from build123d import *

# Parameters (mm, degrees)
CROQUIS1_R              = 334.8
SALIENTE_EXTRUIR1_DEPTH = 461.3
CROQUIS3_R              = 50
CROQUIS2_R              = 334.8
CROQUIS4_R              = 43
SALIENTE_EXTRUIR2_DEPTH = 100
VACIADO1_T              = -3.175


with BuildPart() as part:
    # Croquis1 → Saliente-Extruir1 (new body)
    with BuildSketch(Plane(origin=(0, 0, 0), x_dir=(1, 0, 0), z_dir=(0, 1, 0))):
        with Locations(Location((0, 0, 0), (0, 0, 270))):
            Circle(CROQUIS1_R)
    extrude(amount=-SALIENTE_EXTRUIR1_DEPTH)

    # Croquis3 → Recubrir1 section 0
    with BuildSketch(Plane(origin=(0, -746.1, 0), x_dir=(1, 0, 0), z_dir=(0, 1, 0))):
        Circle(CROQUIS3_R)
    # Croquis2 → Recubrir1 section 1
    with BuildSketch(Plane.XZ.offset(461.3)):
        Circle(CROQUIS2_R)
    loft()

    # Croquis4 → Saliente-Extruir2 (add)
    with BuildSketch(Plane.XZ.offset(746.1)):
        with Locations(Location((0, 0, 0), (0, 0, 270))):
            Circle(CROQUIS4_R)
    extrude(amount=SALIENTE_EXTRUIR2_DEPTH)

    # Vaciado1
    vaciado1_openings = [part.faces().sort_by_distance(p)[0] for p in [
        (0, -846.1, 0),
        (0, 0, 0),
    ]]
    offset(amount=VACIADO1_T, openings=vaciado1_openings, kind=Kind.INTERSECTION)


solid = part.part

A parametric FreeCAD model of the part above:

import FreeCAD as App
import Part
import Sketcher
from FreeCAD import Vector


def faces_at(feature, points):
    """Names of the faces that lie closest to the given points."""
    faces = feature.Shape.Faces
    near = lambda p: min(range(len(faces)), key=lambda i: faces[i].distToShape(Part.Vertex(*p))[0])
    return sorted({f"Face{near(p) + 1}" for p in points})

doc = App.newDocument("Part")
params = doc.addObject("Spreadsheet::Sheet", "Params")
for row, (alias, value) in enumerate([
    ("sketch1_diameter", "669.6 mm"),
    ("pad1_length", "461.3 mm"),
    ("sketch2_diameter", "100 mm"),
    ("sketch3_diameter", "669.6 mm"),
    ("sketch4_diameter", "86 mm"),
    ("pad2_length", "100 mm"),
    ("thickness_wall", "3.175 mm"),
], start=1):
    params.set(f"A{row}", alias)
    params.set(f"B{row}", "=" + value)
    params.setAlias(f"B{row}", alias)

body = doc.addObject("PartDesign::Body", "Body")

sketch1 = doc.addObject("Sketcher::SketchObject", "Sketch")
body.addObject(sketch1)
sketch1.AttachmentSupport = (doc.XZ_Plane, [""])
sketch1.MapMode = "FlatFace"
sketch1.addGeometry(Part.Circle(Vector(0, 0, 0), Vector(0, 0, 1), 334.8), False)
sketch1.addConstraint([
    Sketcher.Constraint("Coincident", 0, 3, -1, 1),
    Sketcher.Constraint("Diameter", 0, 669.6),
])
sketch1.setExpression("Constraints[1]", "Params.sketch1_diameter")
pad1 = doc.addObject("PartDesign::Pad", "Pad")
body.addObject(pad1)
pad1.Profile = sketch1
pad1.setExpression("Length", "Params.pad1_length")

sketch2 = doc.addObject("Sketcher::SketchObject", "Sketch001")
body.addObject(sketch2)
sketch2.AttachmentSupport = (doc.XZ_Plane, [""])
sketch2.MapMode = "FlatFace"
sketch2.AttachmentOffset = App.Placement(Vector(0, 0, 746.1), App.Rotation())
sketch2.addGeometry(Part.Circle(Vector(0, 0, 0), Vector(0, 0, 1), 50), False)
sketch2.addConstraint([
    Sketcher.Constraint("Coincident", 0, 3, -1, 1),
    Sketcher.Constraint("Diameter", 0, 100.0),
])
sketch2.setExpression("Constraints[1]", "Params.sketch2_diameter")

sketch3 = doc.addObject("Sketcher::SketchObject", "Sketch002")
body.addObject(sketch3)
sketch3.AttachmentSupport = (doc.XZ_Plane, [""])
sketch3.MapMode = "FlatFace"
sketch3.AttachmentOffset = App.Placement(Vector(0, 0, 461.3), App.Rotation())
sketch3.addGeometry(Part.Circle(Vector(0, 0, 0), Vector(0, 0, 1), 334.8), False)
sketch3.addConstraint([
    Sketcher.Constraint("Coincident", 0, 3, -1, 1),
    Sketcher.Constraint("Diameter", 0, 669.6),
])
sketch3.setExpression("Constraints[1]", "Params.sketch3_diameter")

additiveloft = doc.addObject("PartDesign::AdditiveLoft", "AdditiveLoft")
body.addObject(additiveloft)
additiveloft.Profile = sketch2
additiveloft.Sections = [sketch3]

sketch4 = doc.addObject("Sketcher::SketchObject", "Sketch003")
body.addObject(sketch4)
sketch4.AttachmentSupport = (doc.XZ_Plane, [""])
sketch4.MapMode = "FlatFace"
sketch4.AttachmentOffset = App.Placement(Vector(0, 0, 746.1), App.Rotation())
sketch4.addGeometry(Part.Circle(Vector(0, 0, 0), Vector(0, 0, 1), 43), False)
sketch4.addConstraint([
    Sketcher.Constraint("Coincident", 0, 3, -1, 1),
    Sketcher.Constraint("Diameter", 0, 86.0),
])
sketch4.setExpression("Constraints[1]", "Params.sketch4_diameter")
pad2 = doc.addObject("PartDesign::Pad", "Pad001")
body.addObject(pad2)
pad2.Profile = sketch4
pad2.setExpression("Length", "Params.pad2_length")
doc.recompute()

thickness = doc.addObject("PartDesign::Thickness", "Thickness")
body.addObject(thickness)
thickness.Base = (pad2, faces_at(pad2, [(0, -846.1, 0), (0, 0, 0)]))
thickness.setExpression("Value", "Params.thickness_wall")
thickness.Reversed = True
thickness.Join = "Intersection"

doc.recompute()
